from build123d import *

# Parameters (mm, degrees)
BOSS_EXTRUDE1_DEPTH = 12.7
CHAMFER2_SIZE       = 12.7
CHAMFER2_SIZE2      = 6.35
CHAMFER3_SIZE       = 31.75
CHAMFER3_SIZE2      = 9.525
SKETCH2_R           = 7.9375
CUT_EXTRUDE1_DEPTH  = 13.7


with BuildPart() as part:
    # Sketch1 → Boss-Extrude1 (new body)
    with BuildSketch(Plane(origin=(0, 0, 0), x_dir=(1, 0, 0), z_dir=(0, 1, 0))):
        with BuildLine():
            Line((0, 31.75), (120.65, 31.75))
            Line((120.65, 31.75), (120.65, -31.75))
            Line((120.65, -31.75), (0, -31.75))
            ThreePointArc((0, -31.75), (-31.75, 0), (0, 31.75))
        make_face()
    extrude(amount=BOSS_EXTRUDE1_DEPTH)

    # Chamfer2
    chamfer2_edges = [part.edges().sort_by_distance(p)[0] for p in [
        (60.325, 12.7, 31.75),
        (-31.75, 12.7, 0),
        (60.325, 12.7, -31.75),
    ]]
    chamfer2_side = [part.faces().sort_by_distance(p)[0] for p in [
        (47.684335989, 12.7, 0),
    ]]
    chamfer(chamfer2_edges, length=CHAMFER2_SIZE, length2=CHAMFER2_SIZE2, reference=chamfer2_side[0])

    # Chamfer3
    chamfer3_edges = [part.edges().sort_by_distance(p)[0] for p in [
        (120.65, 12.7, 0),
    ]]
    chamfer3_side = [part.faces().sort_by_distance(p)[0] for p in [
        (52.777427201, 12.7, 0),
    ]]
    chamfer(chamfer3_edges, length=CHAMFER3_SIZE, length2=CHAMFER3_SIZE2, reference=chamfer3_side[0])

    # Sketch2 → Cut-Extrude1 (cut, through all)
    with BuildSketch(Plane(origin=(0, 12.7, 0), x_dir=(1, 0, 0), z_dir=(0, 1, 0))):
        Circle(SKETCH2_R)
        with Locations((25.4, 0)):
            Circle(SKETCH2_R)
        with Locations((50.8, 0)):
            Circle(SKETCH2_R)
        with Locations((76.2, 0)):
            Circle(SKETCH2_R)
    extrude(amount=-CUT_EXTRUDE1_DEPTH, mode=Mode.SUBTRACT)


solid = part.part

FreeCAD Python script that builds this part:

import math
import FreeCAD as App
import Part
import Sketcher

V = App.Vector
Q = App.Units.Quantity


def edges_at(feature, points):
    """Names of the edges that pass closest to the given points."""
    edges = feature.Shape.Edges
    near = lambda p: min(range(len(edges)), key=lambda i: edges[i].distToShape(Part.Vertex(*p))[0])
    return sorted({f"Edge{near(p) + 1}" for p in points})

doc = App.newDocument("Part")
body = doc.addObject("PartDesign::Body", "Body")

# Sketch on XZ plane
sketch1 = body.newObject("Sketcher::SketchObject", "Sketch")
sketch1.AttachmentSupport = (doc.getObject("XZ_Plane"), [""])
sketch1.MapMode = "FlatFace"
sketch1.addGeometry([
    Part.LineSegment(V(120.65, -31.75, 0), V(0, -31.75, 0)),
    Part.ArcOfCircle(Part.Circle(V(0, 0, 0), V(0, 0, 1), 31.75), math.radians(90), math.radians(270)),
    Part.LineSegment(V(0, 31.75, 0), V(120.65, 31.75, 0)),
    Part.LineSegment(V(120.65, 31.75, 0), V(120.65, -31.75, 0)),
], False)
sketch1.addConstraint([
    Sketcher.Constraint("Tangent", 0, 2, 1, 2),
    Sketcher.Constraint("Tangent", 1, 1, 2, 1),
    Sketcher.Constraint("Coincident", 2, 2, 3, 1),
    Sketcher.Constraint("Coincident", 3, 2, 0, 1),
    Sketcher.Constraint("Horizontal", 0),
    Sketcher.Constraint("Horizontal", 2),
    Sketcher.Constraint("Vertical", 3),
    Sketcher.Constraint("Coincident", 1, 3, -1, 1),
    Sketcher.Constraint("Radius", 1, Q("1.25 in")),
    Sketcher.Constraint("DistanceX", 0, 2, 0, 1, Q("4.75 in")),
])
pad1 = body.newObject("PartDesign::Pad", "Pad")
pad1.Profile = sketch1
pad1.Length = Q("0.5 in")
pad1.Reversed = True
doc.recompute()

chamfer = body.newObject("PartDesign::Chamfer", "Chamfer")
chamfer.Base = (pad1, edges_at(pad1, [(60.325, 12.7, 31.75), (-31.75, 12.7, 0), (60.325, 12.7, -31.75)]))
chamfer.ChamferType = "Two distances"
chamfer.Size = Q("0.5 in")
chamfer.Size2 = Q("0.25 in")
chamfer.FlipDirection = True
doc.recompute()

chamfer2 = body.newObject("PartDesign::Chamfer", "Chamfer001")
chamfer2.Base = (chamfer, edges_at(chamfer, [(120.65, 12.7, 0)]))
chamfer2.ChamferType = "Two distances"
chamfer2.Size = Q("1.25 in")
chamfer2.Size2 = Q("0.375 in")
chamfer2.FlipDirection = True

# Sketch on XZ plane
sketch2 = body.newObject("Sketcher::SketchObject", "Sketch001")
sketch2.AttachmentSupport = (doc.getObject("XZ_Plane"), [""])
sketch2.MapMode = "FlatFace"
sketch2.AttachmentOffset = App.Placement(V(0, 0, -0.5 * 25.4), App.Rotation())
sketch2.addGeometry([
    Part.Circle(V(0, 0, 0), V(0, 0, 1), 7.9375),
    Part.Circle(V(25.4, 0, 0), V(0, 0, 1), 7.9375),
    Part.Circle(V(50.8, 0, 0), V(0, 0, 1), 7.9375),
    Part.Circle(V(76.2, 0, 0), V(0, 0, 1), 7.9375),
], False)
sketch2.addConstraint([
    Sketcher.Constraint("Coincident", 0, 3, -1, 1),
    Sketcher.Constraint("Equal", 0, 1),
    Sketcher.Constraint("Equal", 1, 2),
    Sketcher.Constraint("Equal", 2, 3),
    Sketcher.Constraint("PointOnObject", 1, 3, -1),
    Sketcher.Constraint("PointOnObject", 2, 3, -1),
    Sketcher.Constraint("PointOnObject", 3, 3, -1),
    Sketcher.Constraint("Diameter", 0, Q("0.625 in")),
    Sketcher.Constraint("DistanceX", -1, 1, 1, 3, Q("1 in")),
    Sketcher.Constraint("DistanceX", -1, 1, 2, 3, Q("2 in")),
    Sketcher.Constraint("DistanceX", -1, 1, 3, 3, Q("3 in")),
])
pocket1 = body.newObject("PartDesign::Pocket", "Pocket")
pocket1.Profile = sketch2
pocket1.Type = "ThroughAll"
pocket1.Reversed = True

doc.recompute()
